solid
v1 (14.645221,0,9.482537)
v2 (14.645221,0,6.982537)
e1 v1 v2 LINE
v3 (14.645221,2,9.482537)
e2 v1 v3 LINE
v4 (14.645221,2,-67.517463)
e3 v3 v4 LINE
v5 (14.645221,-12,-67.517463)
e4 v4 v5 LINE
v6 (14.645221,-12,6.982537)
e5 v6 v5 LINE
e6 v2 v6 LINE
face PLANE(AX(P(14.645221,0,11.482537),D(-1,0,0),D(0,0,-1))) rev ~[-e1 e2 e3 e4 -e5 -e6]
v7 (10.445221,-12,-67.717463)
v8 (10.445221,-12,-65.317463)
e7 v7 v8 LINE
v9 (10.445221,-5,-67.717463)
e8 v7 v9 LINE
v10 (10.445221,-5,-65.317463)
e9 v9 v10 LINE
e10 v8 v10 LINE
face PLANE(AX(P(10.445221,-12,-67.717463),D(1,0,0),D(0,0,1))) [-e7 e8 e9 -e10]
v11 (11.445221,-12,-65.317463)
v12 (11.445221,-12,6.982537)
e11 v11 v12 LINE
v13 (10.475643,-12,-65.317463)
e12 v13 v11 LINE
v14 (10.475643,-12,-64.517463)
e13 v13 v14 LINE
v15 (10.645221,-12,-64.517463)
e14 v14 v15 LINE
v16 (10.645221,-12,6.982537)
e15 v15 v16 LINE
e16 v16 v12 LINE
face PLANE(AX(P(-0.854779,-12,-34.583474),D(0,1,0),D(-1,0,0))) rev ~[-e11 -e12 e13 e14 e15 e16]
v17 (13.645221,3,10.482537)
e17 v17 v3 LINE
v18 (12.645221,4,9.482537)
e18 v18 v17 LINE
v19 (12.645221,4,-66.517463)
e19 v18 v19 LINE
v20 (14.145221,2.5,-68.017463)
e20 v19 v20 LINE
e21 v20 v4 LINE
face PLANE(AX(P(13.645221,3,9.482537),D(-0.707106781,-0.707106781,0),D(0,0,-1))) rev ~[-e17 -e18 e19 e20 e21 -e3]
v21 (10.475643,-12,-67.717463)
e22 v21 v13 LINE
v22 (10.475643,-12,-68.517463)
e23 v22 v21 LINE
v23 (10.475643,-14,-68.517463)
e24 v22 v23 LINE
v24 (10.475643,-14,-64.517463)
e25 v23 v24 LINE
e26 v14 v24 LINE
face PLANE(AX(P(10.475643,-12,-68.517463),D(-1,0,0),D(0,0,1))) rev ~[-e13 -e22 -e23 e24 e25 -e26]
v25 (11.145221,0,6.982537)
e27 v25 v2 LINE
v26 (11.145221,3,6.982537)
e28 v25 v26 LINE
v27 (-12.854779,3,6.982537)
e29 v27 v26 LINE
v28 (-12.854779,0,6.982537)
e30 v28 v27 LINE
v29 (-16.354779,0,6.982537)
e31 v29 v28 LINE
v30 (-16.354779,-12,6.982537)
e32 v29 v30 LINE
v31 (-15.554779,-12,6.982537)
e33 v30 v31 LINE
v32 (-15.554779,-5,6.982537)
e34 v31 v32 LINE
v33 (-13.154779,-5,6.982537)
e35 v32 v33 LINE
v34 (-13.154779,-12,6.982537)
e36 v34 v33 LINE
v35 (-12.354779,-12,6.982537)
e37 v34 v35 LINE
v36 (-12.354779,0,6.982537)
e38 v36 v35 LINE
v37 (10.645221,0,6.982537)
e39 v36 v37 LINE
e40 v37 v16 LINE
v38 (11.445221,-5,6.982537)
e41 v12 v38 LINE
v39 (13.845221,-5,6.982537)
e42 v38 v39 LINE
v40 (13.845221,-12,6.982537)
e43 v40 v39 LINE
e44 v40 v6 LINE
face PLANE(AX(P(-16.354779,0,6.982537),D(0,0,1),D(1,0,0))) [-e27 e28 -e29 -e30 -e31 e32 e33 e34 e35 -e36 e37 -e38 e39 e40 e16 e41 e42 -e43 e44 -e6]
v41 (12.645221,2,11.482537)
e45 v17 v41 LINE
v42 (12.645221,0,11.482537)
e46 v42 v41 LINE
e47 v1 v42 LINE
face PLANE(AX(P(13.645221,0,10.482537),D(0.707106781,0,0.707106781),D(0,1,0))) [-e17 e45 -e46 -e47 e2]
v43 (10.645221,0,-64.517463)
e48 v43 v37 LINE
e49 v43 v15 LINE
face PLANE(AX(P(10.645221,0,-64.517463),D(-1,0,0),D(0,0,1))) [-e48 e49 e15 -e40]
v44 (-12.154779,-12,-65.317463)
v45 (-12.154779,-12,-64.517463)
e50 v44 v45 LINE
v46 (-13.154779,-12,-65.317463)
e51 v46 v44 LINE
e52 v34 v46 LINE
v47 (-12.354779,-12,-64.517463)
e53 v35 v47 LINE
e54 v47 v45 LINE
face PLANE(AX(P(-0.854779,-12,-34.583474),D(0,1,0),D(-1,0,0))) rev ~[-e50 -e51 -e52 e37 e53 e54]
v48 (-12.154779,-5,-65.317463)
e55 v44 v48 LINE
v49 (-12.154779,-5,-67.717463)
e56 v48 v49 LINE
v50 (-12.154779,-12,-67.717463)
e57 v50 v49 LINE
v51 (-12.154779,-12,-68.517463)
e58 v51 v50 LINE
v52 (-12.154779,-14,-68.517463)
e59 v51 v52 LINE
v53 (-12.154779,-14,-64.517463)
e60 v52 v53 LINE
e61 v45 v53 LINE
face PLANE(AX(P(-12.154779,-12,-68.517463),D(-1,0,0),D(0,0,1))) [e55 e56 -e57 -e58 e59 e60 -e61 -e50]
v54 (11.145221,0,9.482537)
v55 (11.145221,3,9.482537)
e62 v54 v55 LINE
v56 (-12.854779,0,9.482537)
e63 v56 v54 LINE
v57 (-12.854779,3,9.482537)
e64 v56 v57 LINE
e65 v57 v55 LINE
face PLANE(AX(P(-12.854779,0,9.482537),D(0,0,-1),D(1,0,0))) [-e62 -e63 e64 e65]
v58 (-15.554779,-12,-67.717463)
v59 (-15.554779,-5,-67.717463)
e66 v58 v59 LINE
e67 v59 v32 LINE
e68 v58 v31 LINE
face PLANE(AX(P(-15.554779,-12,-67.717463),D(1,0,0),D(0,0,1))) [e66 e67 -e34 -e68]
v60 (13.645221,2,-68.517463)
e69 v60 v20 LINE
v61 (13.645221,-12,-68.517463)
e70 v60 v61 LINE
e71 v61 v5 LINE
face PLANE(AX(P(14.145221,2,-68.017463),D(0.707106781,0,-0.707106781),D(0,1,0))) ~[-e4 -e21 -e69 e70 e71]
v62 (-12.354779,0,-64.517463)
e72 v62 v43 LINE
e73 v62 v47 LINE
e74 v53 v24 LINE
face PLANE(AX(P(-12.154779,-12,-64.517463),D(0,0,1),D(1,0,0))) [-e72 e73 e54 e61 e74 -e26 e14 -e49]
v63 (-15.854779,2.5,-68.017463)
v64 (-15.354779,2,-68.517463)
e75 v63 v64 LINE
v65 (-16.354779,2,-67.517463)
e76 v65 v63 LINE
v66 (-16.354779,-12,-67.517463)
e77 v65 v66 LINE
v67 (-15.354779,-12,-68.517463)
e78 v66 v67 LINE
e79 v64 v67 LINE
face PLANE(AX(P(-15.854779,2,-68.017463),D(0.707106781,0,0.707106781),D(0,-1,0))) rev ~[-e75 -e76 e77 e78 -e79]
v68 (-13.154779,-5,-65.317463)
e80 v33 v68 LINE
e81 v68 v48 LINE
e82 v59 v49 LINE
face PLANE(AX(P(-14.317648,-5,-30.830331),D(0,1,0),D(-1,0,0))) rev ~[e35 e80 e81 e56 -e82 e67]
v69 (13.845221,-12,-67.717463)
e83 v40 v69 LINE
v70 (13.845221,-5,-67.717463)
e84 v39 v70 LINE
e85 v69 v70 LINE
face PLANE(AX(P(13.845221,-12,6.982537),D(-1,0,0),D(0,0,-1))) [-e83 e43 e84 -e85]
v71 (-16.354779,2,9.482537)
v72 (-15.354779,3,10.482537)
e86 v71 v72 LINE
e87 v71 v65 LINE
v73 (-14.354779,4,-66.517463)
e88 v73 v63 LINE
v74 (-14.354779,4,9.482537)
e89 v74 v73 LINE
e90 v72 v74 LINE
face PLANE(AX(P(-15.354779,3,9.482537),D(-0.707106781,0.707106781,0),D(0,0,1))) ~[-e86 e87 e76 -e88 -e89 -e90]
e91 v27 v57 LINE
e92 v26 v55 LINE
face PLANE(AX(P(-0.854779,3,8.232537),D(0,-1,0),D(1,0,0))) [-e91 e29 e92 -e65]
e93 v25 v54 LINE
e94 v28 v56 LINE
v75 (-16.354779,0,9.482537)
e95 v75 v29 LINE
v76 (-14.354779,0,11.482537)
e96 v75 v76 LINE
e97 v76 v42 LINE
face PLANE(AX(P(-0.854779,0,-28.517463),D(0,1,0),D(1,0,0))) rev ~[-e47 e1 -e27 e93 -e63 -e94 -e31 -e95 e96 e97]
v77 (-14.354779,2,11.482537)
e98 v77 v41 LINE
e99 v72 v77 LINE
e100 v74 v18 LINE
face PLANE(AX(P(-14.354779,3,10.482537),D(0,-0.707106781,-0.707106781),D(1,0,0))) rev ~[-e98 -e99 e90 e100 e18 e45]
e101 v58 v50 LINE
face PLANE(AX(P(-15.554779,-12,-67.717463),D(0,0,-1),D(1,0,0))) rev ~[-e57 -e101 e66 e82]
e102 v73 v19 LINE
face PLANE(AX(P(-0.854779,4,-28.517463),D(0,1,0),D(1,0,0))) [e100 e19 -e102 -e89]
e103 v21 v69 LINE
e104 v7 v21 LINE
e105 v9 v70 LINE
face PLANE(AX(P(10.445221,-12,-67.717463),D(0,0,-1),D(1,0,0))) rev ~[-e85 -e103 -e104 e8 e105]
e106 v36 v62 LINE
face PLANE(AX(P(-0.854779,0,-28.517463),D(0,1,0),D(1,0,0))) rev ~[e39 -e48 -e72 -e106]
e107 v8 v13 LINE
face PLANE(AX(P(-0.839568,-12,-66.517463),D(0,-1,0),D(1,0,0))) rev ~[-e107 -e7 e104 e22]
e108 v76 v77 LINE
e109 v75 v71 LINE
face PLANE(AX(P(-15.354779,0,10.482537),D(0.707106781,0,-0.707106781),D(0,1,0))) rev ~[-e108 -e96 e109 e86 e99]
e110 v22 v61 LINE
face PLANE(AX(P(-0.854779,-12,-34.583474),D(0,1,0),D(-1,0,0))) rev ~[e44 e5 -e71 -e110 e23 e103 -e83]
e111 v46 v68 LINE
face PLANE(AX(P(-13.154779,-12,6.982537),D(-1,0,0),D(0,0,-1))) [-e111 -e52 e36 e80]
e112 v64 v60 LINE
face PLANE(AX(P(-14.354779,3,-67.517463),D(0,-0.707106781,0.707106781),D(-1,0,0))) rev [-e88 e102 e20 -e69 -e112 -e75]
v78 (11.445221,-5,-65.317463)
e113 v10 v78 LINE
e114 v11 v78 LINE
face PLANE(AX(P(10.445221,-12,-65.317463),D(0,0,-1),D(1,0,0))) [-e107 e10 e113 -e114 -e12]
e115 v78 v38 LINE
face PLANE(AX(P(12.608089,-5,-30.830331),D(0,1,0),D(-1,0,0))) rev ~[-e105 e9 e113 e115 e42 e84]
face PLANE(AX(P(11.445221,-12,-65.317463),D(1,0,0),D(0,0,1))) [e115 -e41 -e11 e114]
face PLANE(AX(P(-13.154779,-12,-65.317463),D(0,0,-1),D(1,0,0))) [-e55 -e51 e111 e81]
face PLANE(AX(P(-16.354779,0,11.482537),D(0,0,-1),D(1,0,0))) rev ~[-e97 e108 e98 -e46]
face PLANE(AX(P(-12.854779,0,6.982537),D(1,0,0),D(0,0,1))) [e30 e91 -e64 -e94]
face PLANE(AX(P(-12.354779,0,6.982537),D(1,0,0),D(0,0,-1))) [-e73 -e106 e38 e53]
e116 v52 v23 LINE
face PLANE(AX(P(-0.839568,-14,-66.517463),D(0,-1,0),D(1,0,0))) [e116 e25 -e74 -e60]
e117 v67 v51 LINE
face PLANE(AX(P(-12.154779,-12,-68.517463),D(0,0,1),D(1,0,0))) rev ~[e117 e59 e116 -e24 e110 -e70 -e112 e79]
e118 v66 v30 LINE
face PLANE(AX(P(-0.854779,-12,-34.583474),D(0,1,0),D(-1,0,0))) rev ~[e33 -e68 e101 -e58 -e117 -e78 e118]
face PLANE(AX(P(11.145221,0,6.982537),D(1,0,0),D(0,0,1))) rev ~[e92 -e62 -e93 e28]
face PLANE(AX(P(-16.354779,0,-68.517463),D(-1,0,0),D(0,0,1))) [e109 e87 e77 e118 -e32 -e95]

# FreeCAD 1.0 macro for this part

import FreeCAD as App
import Part
import Sketcher
Q = App.Units.Quantity


def edges_at(feature, points):
    """Names of the edges that pass closest to the given points."""
    edges = feature.Shape.Edges
    near = lambda p: min(range(len(edges)), key=lambda i: edges[i].distToShape(Part.Vertex(*p))[0])
    return sorted({f"Edge{near(p) + 1}" for p in points})


def add_polygon(sketch, points):
    """Adds a closed chain of lines whose ends are joined by coincident constraints."""
    first, n = sketch.GeometryCount, len(points)
    for a, b in zip(points, points[1:] + points[:1]):
        sketch.addGeometry(Part.LineSegment(App.Vector(*a, 0), App.Vector(*b, 0)), False)
    for i in range(n):
        sketch.addConstraint(Sketcher.Constraint("Coincident", first + i, 2, first + (i + 1) % n, 1))

doc = App.newDocument("Part")
body = doc.addObject("PartDesign::Body", "Body")

# Sketch on XZ plane
sketch1 = body.newObject("Sketcher::SketchObject", "Sketch")
sketch1.AttachmentSupport = (doc.getObject("XZ_Plane"), [""])
sketch1.MapMode = "FlatFace"
add_polygon(sketch1, [(-16.354779, -68.517463), (-16.354779, 11.482537), (14.645221, 11.482537), (14.645221, -68.517463)])  # lines 0-3
sketch1.addConstraint(Sketcher.Constraint("Vertical", 0))
sketch1.addConstraint(Sketcher.Constraint("Horizontal", 1))
sketch1.addConstraint(Sketcher.Constraint("Vertical", 2))
sketch1.addConstraint(Sketcher.Constraint("Horizontal", 3))
sketch1.addConstraint(Sketcher.Constraint("DistanceX", 1, 1, 1, 2, Q("31 mm")))
sketch1.addConstraint(Sketcher.Constraint("DistanceY", 0, 1, 0, 2, Q("80 mm")))
sketch1.addConstraint(Sketcher.Constraint("DistanceX", 0, 2, -1, 1, Q("16.354779 mm")))
sketch1.addConstraint(Sketcher.Constraint("DistanceY", -1, 1, 0, 2, Q("11.482537 mm")))
pad1 = body.newObject("PartDesign::Pad", "Pad")
pad1.Profile = sketch1
pad1.Length = 4
pad1.Reversed = True

# Sketch on XZ plane
sketch2 = body.newObject("Sketcher::SketchObject", "Sketch001")
sketch2.AttachmentSupport = (doc.getObject("XZ_Plane"), [""])
sketch2.MapMode = "FlatFace"
add_polygon(sketch2, [(-12.854779, 9.482537), (-12.854779, 6.982537), (11.145221, 6.982537), (11.145221, 9.482537)])  # lines 0-3
sketch2.addConstraint(Sketcher.Constraint("Vertical", 0))
sketch2.addConstraint(Sketcher.Constraint("Horizontal", 1))
sketch2.addConstraint(Sketcher.Constraint("Vertical", 2))
sketch2.addConstraint(Sketcher.Constraint("Horizontal", 3))
sketch2.addConstraint(Sketcher.Constraint("DistanceX", 1, 1, 1, 2, Q("24 mm")))
sketch2.addConstraint(Sketcher.Constraint("DistanceY", 0, 2, 0, 1, Q("2.5 mm")))
sketch2.addConstraint(Sketcher.Constraint("DistanceX", 0, 2, -1, 1, Q("12.854779 mm")))
sketch2.addConstraint(Sketcher.Constraint("DistanceY", -1, 1, 0, 2, Q("6.982537 mm")))
pocket1 = body.newObject("PartDesign::Pocket", "Pocket")
pocket1.Profile = sketch2
pocket1.Length = 3

# Sketch on XZ plane
sketch3 = body.newObject("Sketcher::SketchObject", "Sketch002")
sketch3.AttachmentSupport = (doc.getObject("XZ_Plane"), [""])
sketch3.MapMode = "FlatFace"
add_polygon(sketch3, [(-12.354779, 6.982537), (-16.354779, 6.982537), (-16.354779, -68.517463), (14.645221, -68.517463), (14.645221, 6.982537), (10.645221, 6.982537), (10.645221, -64.517463), (-12.354779, -64.517463)])  # lines 0-7
sketch3.addConstraint(Sketcher.Constraint("Horizontal", 0))
sketch3.addConstraint(Sketcher.Constraint("Vertical", 1))
sketch3.addConstraint(Sketcher.Constraint("Horizontal", 2))
sketch3.addConstraint(Sketcher.Constraint("Vertical", 3))
sketch3.addConstraint(Sketcher.Constraint("Horizontal", 4))
sketch3.addConstraint(Sketcher.Constraint("Vertical", 5))
sketch3.addConstraint(Sketcher.Constraint("Horizontal", 6))
sketch3.addConstraint(Sketcher.Constraint("Vertical", 7))
sketch3.addConstraint(Sketcher.Constraint("Horizontal", 0, 2, 3, 2))
sketch3.addConstraint(Sketcher.Constraint("Equal", 0, 4))
sketch3.addConstraint(Sketcher.Constraint("DistanceX", 0, 2, 0, 1, Q("4 mm")))
sketch3.addConstraint(Sketcher.Constraint("DistanceX", 2, 1, 2, 2, Q("31 mm")))
sketch3.addConstraint(Sketcher.Constraint("DistanceY", 1, 2, 1, 1, Q("75.5 mm")))
sketch3.addConstraint(Sketcher.Constraint("DistanceY", 5, 2, 5, 1, Q("71.5 mm")))
sketch3.addConstraint(Sketcher.Constraint("DistanceX", 0, 2, -1, 1, Q("16.354779 mm")))
sketch3.addConstraint(Sketcher.Constraint("DistanceY", -1, 1, 0, 2, Q("6.982537 mm")))
pad2 = body.newObject("PartDesign::Pad", "Pad001")
pad2.Profile = sketch3
pad2.Length = 12

# Sketch on XZ plane
sketch4 = body.newObject("Sketcher::SketchObject", "Sketch003")
sketch4.AttachmentSupport = (doc.getObject("XZ_Plane"), [""])
sketch4.MapMode = "FlatFace"
sketch4.AttachmentOffset = App.Placement(App.Vector(0, 0, 12), App.Rotation())
add_polygon(sketch4, [(-13.154779, 6.982537), (-15.554779, 6.982537), (-15.554779, -67.717463), (-12.154779, -67.717463), (-12.154779, -65.317463), (-13.154779, -65.317463)])  # lines 0-5
add_polygon(sketch4, [(13.845221, 6.982537), (11.445221, 6.982537), (11.445221, -65.317463), (10.445221, -65.317463), (10.445221, -67.717463), (13.845221, -67.717463)])  # lines 6-11
sketch4.addConstraint(Sketcher.Constraint("Horizontal", 0))
sketch4.addConstraint(Sketcher.Constraint("Vertical", 1))
sketch4.addConstraint(Sketcher.Constraint("Horizontal", 2))
sketch4.addConstraint(Sketcher.Constraint("Vertical", 3))
sketch4.addConstraint(Sketcher.Constraint("Horizontal", 4))
sketch4.addConstraint(Sketcher.Constraint("Vertical", 5))
sketch4.addConstraint(Sketcher.Constraint("Horizontal", 6))
sketch4.addConstraint(Sketcher.Constraint("Vertical", 7))
sketch4.addConstraint(Sketcher.Constraint("Horizontal", 8))
sketch4.addConstraint(Sketcher.Constraint("Vertical", 9))
sketch4.addConstraint(Sketcher.Constraint("Horizontal", 10))
sketch4.addConstraint(Sketcher.Constraint("Vertical", 11))
sketch4.addConstraint(Sketcher.Constraint("Horizontal", 5, 2, 6, 2))
sketch4.addConstraint(Sketcher.Constraint("Horizontal", 4, 2, 7, 2))
sketch4.addConstraint(Sketcher.Constraint("Horizontal", 2, 2, 9, 2))
sketch4.addConstraint(Sketcher.Constraint("Equal", 0, 6))
sketch4.addConstraint(Sketcher.Constraint("Equal", 4, 8))
sketch4.addConstraint(Sketcher.Constraint("Equal", 6, 3))
sketch4.addConstraint(Sketcher.Constraint("DistanceX", 4, 2, 4, 1, Q("1 mm")))
sketch4.addConstraint(Sketcher.Constraint("DistanceX", 0, 2, 0, 1, Q("2.4 mm")))
sketch4.addConstraint(Sketcher.Constraint("DistanceY", 1, 2, 1, 1, Q("74.7 mm")))
sketch4.addConstraint(Sketcher.Constraint("DistanceX", 0, 2, 6, 2, Q("27 mm")))
sketch4.addConstraint(Sketcher.Constraint("DistanceX", 0, 2, -1, 1, Q("15.554779 mm")))
sketch4.addConstraint(Sketcher.Constraint("DistanceY", -1, 1, 0, 2, Q("6.982537 mm")))
pocket2 = body.newObject("PartDesign::Pocket", "Pocket001")
pocket2.Profile = sketch4
pocket2.Length = 7

# Sketch on XZ plane
sketch5 = body.newObject("Sketcher::SketchObject", "Sketch004")
sketch5.AttachmentSupport = (doc.getObject("XZ_Plane"), [""])
sketch5.MapMode = "FlatFace"
sketch5.AttachmentOffset = App.Placement(App.Vector(0, 0, 12), App.Rotation())
add_polygon(sketch5, [(-12.154779, -64.517463), (-12.154779, -68.517463), (10.475643, -68.517463), (10.475643, -64.517463)])  # lines 0-3
sketch5.addConstraint(Sketcher.Constraint("Vertical", 0))
sketch5.addConstraint(Sketcher.Constraint("Horizontal", 1))
sketch5.addConstraint(Sketcher.Constraint("Vertical", 2))
sketch5.addConstraint(Sketcher.Constraint("Horizontal", 3))
sketch5.addConstraint(Sketcher.Constraint("DistanceY", 0, 2, 0, 1, Q("4 mm")))
sketch5.addConstraint(Sketcher.Constraint("DistanceX", 1, 1, 1, 2, Q("22.630422 mm")))
sketch5.addConstraint(Sketcher.Constraint("DistanceX", 0, 2, -1, 1, Q("12.154779 mm")))
sketch5.addConstraint(Sketcher.Constraint("DistanceY", 0, 2, -1, 1, Q("68.517463 mm")))
pad3 = body.newObject("PartDesign::Pad", "Pad002")
pad3.Profile = sketch5
pad3.Length = 2
doc.recompute()

chamfer = body.newObject("PartDesign::Chamfer", "Chamfer")
chamfer.Base = (pad3, edges_at(pad3, [(-16.355, 2, 11.483), (14.645, 2, 11.483)]))
chamfer.Size = 2
doc.recompute()

chamfer2 = body.newObject("PartDesign::Chamfer", "Chamfer001")
chamfer2.Base = (chamfer, edges_at(chamfer, [(-0.855, 4, 11.483)]))
chamfer2.Size = 2
doc.recompute()

chamfer3 = body.newObject("PartDesign::Chamfer", "Chamfer002")
chamfer3.Base = (chamfer2, edges_at(chamfer2, [(-16.355, 4, -29.517), (14.645, 4, -29.517)]))
chamfer3.Size = 2
doc.recompute()

chamfer4 = body.newObject("PartDesign::Chamfer", "Chamfer003")
chamfer4.Base = (chamfer3, edges_at(chamfer3, [(-0.855, 4, -68.517)]))
chamfer4.Size = 2
doc.recompute()

chamfer5 = body.newObject("PartDesign::Chamfer", "Chamfer004")
chamfer5.Base = (chamfer4, edges_at(chamfer4, [(14.645, -5, -68.517), (-16.355, -5, -68.517)]))
chamfer5.Size = 1

doc.recompute()
